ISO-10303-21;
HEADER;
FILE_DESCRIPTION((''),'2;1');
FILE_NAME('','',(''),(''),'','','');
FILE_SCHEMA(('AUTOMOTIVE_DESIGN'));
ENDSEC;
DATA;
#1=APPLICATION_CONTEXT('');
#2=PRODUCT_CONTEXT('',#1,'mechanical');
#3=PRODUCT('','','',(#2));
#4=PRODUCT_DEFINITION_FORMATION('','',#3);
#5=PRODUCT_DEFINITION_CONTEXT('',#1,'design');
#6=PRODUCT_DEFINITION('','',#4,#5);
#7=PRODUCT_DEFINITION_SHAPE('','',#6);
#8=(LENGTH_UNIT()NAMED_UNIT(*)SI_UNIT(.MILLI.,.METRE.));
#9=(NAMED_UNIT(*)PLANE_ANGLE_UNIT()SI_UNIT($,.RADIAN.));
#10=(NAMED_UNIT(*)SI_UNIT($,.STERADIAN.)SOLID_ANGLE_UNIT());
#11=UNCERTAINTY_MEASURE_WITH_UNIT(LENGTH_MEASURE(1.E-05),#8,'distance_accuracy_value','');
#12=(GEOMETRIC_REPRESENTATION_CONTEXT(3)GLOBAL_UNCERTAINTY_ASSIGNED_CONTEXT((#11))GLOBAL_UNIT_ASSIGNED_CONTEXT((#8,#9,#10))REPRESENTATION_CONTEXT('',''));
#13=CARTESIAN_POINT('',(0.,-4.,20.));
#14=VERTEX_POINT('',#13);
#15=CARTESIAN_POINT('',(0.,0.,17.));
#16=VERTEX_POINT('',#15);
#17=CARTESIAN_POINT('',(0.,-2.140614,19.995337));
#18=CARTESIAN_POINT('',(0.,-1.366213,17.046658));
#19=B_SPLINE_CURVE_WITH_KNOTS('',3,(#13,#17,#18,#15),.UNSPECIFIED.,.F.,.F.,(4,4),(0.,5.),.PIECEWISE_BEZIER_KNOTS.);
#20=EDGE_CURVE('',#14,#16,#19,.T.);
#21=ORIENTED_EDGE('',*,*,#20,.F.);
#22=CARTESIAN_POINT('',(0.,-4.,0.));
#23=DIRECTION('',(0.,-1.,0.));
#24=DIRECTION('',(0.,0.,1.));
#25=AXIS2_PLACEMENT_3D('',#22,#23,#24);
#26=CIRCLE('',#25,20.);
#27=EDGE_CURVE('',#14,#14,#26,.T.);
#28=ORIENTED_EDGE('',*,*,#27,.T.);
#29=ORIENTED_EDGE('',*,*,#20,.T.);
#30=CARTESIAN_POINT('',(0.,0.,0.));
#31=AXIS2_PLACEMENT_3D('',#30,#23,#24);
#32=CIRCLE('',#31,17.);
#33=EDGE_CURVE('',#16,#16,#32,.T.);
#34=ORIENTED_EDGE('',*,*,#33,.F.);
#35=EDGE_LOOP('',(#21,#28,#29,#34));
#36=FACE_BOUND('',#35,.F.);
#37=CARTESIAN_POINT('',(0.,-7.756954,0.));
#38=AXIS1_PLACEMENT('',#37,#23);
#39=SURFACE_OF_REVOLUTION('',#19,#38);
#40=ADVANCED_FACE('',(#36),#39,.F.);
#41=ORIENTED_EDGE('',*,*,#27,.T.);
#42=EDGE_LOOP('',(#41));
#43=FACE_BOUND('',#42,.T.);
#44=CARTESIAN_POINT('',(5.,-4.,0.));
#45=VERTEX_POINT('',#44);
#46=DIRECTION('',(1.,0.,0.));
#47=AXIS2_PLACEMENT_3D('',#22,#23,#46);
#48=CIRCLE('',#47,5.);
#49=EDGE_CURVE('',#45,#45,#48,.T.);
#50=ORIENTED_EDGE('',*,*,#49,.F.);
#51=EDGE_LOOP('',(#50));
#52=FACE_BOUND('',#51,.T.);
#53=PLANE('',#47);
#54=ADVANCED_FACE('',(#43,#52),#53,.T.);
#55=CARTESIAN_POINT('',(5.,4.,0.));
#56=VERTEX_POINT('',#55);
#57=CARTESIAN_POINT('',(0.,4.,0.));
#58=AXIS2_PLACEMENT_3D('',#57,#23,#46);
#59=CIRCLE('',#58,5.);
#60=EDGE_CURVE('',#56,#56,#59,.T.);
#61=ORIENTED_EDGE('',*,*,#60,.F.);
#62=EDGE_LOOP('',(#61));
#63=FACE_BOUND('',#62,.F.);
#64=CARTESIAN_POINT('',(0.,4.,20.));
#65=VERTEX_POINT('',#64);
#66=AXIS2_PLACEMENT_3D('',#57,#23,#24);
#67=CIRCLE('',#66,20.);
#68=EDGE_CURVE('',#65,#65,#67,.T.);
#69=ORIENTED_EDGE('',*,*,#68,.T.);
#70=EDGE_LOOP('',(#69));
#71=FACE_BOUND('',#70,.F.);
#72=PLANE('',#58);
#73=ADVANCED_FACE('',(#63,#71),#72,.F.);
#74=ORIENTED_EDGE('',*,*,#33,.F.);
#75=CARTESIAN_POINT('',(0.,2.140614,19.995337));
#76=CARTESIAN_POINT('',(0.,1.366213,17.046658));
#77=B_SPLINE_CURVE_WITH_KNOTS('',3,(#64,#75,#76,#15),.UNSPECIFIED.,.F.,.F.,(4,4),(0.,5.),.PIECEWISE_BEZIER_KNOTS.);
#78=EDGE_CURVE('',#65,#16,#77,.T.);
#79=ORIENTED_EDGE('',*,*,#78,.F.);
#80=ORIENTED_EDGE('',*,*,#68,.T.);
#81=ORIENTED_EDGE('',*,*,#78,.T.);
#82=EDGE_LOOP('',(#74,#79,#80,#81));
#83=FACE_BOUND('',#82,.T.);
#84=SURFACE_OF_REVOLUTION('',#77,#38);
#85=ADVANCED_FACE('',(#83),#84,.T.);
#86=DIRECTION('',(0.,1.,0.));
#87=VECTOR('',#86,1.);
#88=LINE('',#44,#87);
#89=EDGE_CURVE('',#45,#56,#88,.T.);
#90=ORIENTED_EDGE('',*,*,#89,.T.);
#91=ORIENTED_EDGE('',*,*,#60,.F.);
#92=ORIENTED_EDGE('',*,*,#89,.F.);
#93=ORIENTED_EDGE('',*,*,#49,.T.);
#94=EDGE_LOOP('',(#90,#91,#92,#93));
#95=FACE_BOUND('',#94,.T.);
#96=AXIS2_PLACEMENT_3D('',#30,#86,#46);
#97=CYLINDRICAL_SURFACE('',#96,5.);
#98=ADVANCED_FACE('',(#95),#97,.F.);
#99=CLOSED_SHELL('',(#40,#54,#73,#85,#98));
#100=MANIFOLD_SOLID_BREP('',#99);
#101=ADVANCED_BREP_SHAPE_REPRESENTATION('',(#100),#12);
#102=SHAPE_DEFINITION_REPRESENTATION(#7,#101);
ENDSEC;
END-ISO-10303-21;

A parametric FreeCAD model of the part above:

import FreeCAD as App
import Part
import Sketcher

V = App.Vector
Q = App.Units.Quantity

doc = App.newDocument("Part")
params = doc.addObject("Spreadsheet::Sheet", "Params")
for row, (alias, value) in enumerate([
    ("sketch1_diameter", "40 mm"),
    ("sketch1_diameter2", "10 mm"),
    ("pad1_length", "8 mm"),
    ("groove_angle", "360 deg"),
], start=1):
    params.set(f"A{row}", alias)
    params.set(f"B{row}", "=" + value)
    params.setAlias(f"B{row}", alias)

body = doc.addObject("PartDesign::Body", "Body")

# Sketch on XZ plane
sketch1 = body.newObject("Sketcher::SketchObject", "Sketch")
sketch1.AttachmentSupport = (doc.getObject("XZ_Plane"), [""])
sketch1.MapMode = "FlatFace"
sketch1.addGeometry(Part.Circle(V(0, 0, 0), V(0, 0, 1), 20), False)
sketch1.addGeometry(Part.Circle(V(0, 0, 0), V(0, 0, 1), 5), False)
sketch1.addConstraint(Sketcher.Constraint("Coincident", 0, 3, -1, 1))
sketch1.addConstraint(Sketcher.Constraint("Coincident", 1, 3, -1, 1))
sketch1.addConstraint(Sketcher.Constraint("Diameter", 0, Q("40 mm")))
sketch1.addConstraint(Sketcher.Constraint("Diameter", 1, Q("10 mm")))
sketch1.setExpression("Constraints[2]", "Params.sketch1_diameter")
sketch1.setExpression("Constraints[3]", "Params.sketch1_diameter2")
pad1 = body.newObject("PartDesign::Pad", "Pad")
pad1.Profile = sketch1
pad1.setExpression("Length", "Params.pad1_length")
pad1.Midplane = True

# Sketch on YZ plane
sketch2 = body.newObject("Sketcher::SketchObject", "Sketch001")
sketch2.AttachmentSupport = (doc.getObject("YZ_Plane"), [""])
sketch2.MapMode = "FlatFace"
sketch2.addGeometry(Part.BSplineCurve([V(-4, 20, 0), V(-2.140614, 19.995337, 0), V(-1.366213, 17.046658, 0), V(0, 17, 0)], [4, 4], [0, 5], False, 3, [1, 1, 1, 1], False), False)
sketch2.addGeometry(Part.BSplineCurve([V(4, 20, 0), V(2.140614, 19.995337, 0), V(1.366213, 17.046658, 0), V(0, 17, 0)], [4, 4], [0, 5], False, 3, [1, 1, 1, 1], False), False)
sketch2.addGeometry(Part.LineSegment(V(4, 20, 0), V(-4, 20, 0)), False)
sketch2.addConstraint(Sketcher.Constraint("Block", 0))
sketch2.addConstraint(Sketcher.Constraint("Block", 1))
sketch2.addConstraint(Sketcher.Constraint("Coincident", 1, 1, 2, 1))
sketch2.addConstraint(Sketcher.Constraint("Coincident", 2, 2, 0, 1))
groove = body.newObject("PartDesign::Groove", "Groove")
groove.Profile = sketch2
groove.ReferenceAxis = (sketch2, ["H_Axis"])
groove.setExpression("Angle", "Params.groove_angle")

doc.recompute()
